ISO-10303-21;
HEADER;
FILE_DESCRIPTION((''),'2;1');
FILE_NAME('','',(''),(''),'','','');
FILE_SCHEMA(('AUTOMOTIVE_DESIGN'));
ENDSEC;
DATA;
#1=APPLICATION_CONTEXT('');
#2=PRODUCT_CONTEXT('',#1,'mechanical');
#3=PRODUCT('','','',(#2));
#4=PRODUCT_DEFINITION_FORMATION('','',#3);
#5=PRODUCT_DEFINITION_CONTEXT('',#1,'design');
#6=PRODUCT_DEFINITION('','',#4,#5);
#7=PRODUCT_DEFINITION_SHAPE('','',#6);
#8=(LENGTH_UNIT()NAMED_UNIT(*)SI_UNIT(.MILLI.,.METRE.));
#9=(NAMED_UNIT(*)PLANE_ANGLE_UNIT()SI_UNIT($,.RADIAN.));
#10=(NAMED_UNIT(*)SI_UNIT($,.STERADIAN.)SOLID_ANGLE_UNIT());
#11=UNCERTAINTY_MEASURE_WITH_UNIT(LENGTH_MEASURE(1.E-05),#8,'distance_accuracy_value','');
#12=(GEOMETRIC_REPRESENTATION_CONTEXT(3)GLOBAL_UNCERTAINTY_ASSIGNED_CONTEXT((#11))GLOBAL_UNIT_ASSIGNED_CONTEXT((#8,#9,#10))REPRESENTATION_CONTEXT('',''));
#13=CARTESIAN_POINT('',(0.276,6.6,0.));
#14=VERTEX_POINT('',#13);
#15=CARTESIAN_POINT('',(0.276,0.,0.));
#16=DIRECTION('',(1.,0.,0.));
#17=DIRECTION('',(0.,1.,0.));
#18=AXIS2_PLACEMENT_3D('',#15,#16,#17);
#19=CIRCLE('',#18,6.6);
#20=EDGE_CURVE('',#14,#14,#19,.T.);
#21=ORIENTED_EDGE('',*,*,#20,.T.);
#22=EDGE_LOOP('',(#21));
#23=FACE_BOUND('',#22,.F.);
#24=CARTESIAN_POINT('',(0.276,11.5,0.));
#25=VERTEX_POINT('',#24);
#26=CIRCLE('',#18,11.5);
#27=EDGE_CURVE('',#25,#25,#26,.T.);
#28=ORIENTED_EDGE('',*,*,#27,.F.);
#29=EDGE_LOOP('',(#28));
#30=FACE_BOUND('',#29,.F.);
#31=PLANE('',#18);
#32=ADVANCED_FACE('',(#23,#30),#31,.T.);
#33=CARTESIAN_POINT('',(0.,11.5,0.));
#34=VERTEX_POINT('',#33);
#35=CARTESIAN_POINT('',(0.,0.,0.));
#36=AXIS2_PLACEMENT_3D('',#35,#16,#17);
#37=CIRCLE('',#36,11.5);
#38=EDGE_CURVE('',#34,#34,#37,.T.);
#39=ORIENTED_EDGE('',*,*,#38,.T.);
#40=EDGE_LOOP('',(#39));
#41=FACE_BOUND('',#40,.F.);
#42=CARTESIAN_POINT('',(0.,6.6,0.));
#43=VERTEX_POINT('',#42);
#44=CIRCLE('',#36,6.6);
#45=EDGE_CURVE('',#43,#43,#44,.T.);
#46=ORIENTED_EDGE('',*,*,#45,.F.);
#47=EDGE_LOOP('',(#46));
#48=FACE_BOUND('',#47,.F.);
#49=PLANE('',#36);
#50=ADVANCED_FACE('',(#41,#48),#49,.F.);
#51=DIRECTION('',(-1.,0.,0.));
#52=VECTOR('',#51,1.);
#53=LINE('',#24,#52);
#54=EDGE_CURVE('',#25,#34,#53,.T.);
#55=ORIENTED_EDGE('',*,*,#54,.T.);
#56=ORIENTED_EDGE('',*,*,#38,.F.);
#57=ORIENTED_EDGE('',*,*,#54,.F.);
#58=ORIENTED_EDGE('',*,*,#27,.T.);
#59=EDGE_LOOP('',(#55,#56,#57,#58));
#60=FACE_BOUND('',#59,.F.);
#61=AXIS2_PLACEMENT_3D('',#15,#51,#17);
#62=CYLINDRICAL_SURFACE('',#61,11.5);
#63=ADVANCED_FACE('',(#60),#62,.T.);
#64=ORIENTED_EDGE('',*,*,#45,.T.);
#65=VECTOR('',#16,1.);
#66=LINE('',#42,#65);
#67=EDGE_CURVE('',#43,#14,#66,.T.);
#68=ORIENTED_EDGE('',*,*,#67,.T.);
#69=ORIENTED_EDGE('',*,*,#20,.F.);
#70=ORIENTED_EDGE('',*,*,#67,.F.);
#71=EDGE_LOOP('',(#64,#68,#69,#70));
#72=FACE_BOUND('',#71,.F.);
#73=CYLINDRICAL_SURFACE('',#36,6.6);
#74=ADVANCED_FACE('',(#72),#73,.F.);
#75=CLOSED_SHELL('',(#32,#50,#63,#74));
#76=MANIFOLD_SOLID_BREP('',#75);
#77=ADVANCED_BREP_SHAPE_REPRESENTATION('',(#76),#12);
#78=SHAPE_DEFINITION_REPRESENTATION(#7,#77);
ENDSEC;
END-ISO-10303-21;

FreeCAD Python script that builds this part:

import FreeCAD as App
import Part
import Sketcher

doc = App.newDocument("Part")
body = doc.addObject("PartDesign::Body", "Body")

# Sketch on XY plane
sketch1 = doc.addObject("Sketcher::SketchObject", "Sketch")
body.addObject(sketch1)
sketch1.AttachmentSupport = (doc.XY_Plane, [""])
sketch1.MapMode = "FlatFace"
sketch1.addGeometry(Part.LineSegment(App.Vector(0, 11.5, 0), App.Vector(0, 6.6, 0)), False)
sketch1.addGeometry(Part.LineSegment(App.Vector(0, 6.6, 0), App.Vector(0.276, 6.6, 0)), False)
sketch1.addGeometry(Part.LineSegment(App.Vector(0.276, 6.6, 0), App.Vector(0.276, 11.5, 0)), False)
sketch1.addGeometry(Part.LineSegment(App.Vector(0.276, 11.5, 0), App.Vector(0, 11.5, 0)), False)
sketch1.addConstraint(Sketcher.Constraint("Coincident", 0, 2, 1, 1))
sketch1.addConstraint(Sketcher.Constraint("Coincident", 1, 2, 2, 1))
sketch1.addConstraint(Sketcher.Constraint("Coincident", 2, 2, 3, 1))
sketch1.addConstraint(Sketcher.Constraint("Coincident", 3, 2, 0, 1))
sketch1.addConstraint(Sketcher.Constraint("Vertical", 0))
sketch1.addConstraint(Sketcher.Constraint("Horizontal", 1))
sketch1.addConstraint(Sketcher.Constraint("Vertical", 2))
sketch1.addConstraint(Sketcher.Constraint("Horizontal", 3))
sketch1.addConstraint(Sketcher.Constraint("PointOnObject", 0, 2, -2))
sketch1.addConstraint(Sketcher.Constraint("DistanceY", 0, 2, 0, 1, 4.9))
sketch1.addConstraint(Sketcher.Constraint("DistanceY", -1, 1, 0, 2, 6.6))
sketch1.addConstraint(Sketcher.Constraint("DistanceX", 1, 1, 1, 2, 0.276))
revolution = doc.addObject("PartDesign::Revolution", "Revolution")
body.addObject(revolution)
revolution.Profile = sketch1
revolution.ReferenceAxis = (sketch1, ["H_Axis"])
revolution.Angle = 360

doc.recompute()
